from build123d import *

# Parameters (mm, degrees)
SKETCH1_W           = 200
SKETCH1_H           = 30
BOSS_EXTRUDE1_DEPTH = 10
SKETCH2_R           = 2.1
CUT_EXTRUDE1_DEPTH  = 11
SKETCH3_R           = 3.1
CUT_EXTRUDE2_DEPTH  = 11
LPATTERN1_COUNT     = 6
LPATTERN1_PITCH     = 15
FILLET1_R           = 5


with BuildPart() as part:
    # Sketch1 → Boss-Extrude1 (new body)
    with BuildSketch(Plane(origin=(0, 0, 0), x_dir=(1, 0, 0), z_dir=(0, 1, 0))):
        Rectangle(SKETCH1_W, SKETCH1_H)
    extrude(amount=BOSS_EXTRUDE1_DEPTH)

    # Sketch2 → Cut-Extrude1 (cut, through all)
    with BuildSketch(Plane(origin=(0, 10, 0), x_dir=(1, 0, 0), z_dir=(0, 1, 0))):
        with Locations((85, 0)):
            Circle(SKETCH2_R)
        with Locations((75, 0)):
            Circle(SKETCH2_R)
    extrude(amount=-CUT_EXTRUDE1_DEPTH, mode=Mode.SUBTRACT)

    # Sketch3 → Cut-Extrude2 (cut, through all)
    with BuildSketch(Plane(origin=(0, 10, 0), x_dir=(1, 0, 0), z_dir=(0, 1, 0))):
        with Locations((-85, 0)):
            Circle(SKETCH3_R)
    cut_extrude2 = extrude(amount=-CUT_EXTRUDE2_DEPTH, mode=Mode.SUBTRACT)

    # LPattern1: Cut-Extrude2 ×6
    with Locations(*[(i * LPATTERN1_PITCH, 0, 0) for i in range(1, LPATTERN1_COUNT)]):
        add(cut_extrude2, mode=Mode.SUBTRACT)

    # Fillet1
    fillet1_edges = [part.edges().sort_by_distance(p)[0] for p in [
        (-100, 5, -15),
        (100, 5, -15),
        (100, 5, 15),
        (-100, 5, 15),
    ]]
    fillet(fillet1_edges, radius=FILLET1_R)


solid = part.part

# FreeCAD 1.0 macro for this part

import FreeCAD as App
import Part
import Sketcher
Q = App.Units.Quantity


def edges_at(feature, points):
    """Names of the edges that pass closest to the given points."""
    edges = feature.Shape.Edges
    near = lambda p: min(range(len(edges)), key=lambda i: edges[i].distToShape(Part.Vertex(*p))[0])
    return sorted({f"Edge{near(p) + 1}" for p in points})

doc = App.newDocument("Part")
body = doc.addObject("PartDesign::Body", "Body")

# Sketch on XZ plane
sketch1 = doc.addObject("Sketcher::SketchObject", "Sketch")
body.addObject(sketch1)
sketch1.AttachmentSupport = (doc.XZ_Plane, [""])
sketch1.MapMode = "FlatFace"
sketch1.addGeometry(Part.LineSegment(App.Vector(-100, -15, 0), App.Vector(-100, 15, 0)), False)
sketch1.addGeometry(Part.LineSegment(App.Vector(-100, 15, 0), App.Vector(100, 15, 0)), False)
sketch1.addGeometry(Part.LineSegment(App.Vector(100, 15, 0), App.Vector(100, -15, 0)), False)
sketch1.addGeometry(Part.LineSegment(App.Vector(100, -15, 0), App.Vector(-100, -15, 0)), False)
sketch1.addConstraint(Sketcher.Constraint("Coincident", 0, 2, 1, 1))
sketch1.addConstraint(Sketcher.Constraint("Coincident", 1, 2, 2, 1))
sketch1.addConstraint(Sketcher.Constraint("Coincident", 2, 2, 3, 1))
sketch1.addConstraint(Sketcher.Constraint("Coincident", 3, 2, 0, 1))
sketch1.addConstraint(Sketcher.Constraint("Vertical", 0))
sketch1.addConstraint(Sketcher.Constraint("Horizontal", 1))
sketch1.addConstraint(Sketcher.Constraint("Vertical", 2))
sketch1.addConstraint(Sketcher.Constraint("Horizontal", 3))
sketch1.addConstraint(Sketcher.Constraint("Symmetric", 0, 2, 2, 2, -1, 1))
sketch1.addConstraint(Sketcher.Constraint("DistanceX", 1, 1, 1, 2, Q("200 mm")))
sketch1.addConstraint(Sketcher.Constraint("DistanceY", 0, 1, 0, 2, Q("30 mm")))
pad1 = doc.addObject("PartDesign::Pad", "Pad")
body.addObject(pad1)
pad1.Profile = sketch1
pad1.Length = 10
pad1.Reversed = True

# Sketch on XZ plane
sketch2 = doc.addObject("Sketcher::SketchObject", "Sketch001")
body.addObject(sketch2)
sketch2.AttachmentSupport = (doc.XZ_Plane, [""])
sketch2.MapMode = "FlatFace"
sketch2.AttachmentOffset = App.Placement(App.Vector(0, 0, -10), App.Rotation())
sketch2.addGeometry(Part.Circle(App.Vector(85, 0, 0), App.Vector(0, 0, 1), 2.1), False)
sketch2.addGeometry(Part.Circle(App.Vector(75, 0, 0), App.Vector(0, 0, 1), 2.1), False)
sketch2.addConstraint(Sketcher.Constraint("Equal", 0, 1))
sketch2.addConstraint(Sketcher.Constraint("PointOnObject", 0, 3, -1))
sketch2.addConstraint(Sketcher.Constraint("PointOnObject", 1, 3, -1))
sketch2.addConstraint(Sketcher.Constraint("Diameter", 0, Q("4.2 mm")))
sketch2.addConstraint(Sketcher.Constraint("DistanceX", -1, 1, 0, 3, Q("85 mm")))
sketch2.addConstraint(Sketcher.Constraint("DistanceX", -1, 1, 1, 3, Q("75 mm")))
pocket1 = doc.addObject("PartDesign::Pocket", "Pocket")
body.addObject(pocket1)
pocket1.Profile = sketch2
pocket1.Type = "ThroughAll"
pocket1.Reversed = True

# Sketch on XZ plane
sketch3 = doc.addObject("Sketcher::SketchObject", "Sketch002")
body.addObject(sketch3)
sketch3.AttachmentSupport = (doc.XZ_Plane, [""])
sketch3.MapMode = "FlatFace"
sketch3.AttachmentOffset = App.Placement(App.Vector(0, 0, -10), App.Rotation())
sketch3.addGeometry(Part.Circle(App.Vector(-85, 0, 0), App.Vector(0, 0, 1), 3.1), False)
sketch3.addConstraint(Sketcher.Constraint("PointOnObject", 0, 3, -1))
sketch3.addConstraint(Sketcher.Constraint("Diameter", 0, Q("6.2 mm")))
sketch3.addConstraint(Sketcher.Constraint("DistanceX", 0, 3, -1, 1, Q("85 mm")))
pocket2 = doc.addObject("PartDesign::Pocket", "Pocket001")
body.addObject(pocket2)
pocket2.Profile = sketch3
pocket2.Type = "ThroughAll"
pocket2.Reversed = True
doc.recompute()

linearpattern = doc.addObject("PartDesign::LinearPattern", "LinearPattern")
body.addObject(linearpattern)
linearpattern.Originals = [pocket2]
linearpattern.Direction = (doc.X_Axis, [""])
linearpattern.Mode = "offset"
linearpattern.Offset = 15
linearpattern.Occurrences = 6
body.Tip = linearpattern
doc.recompute()

fillet = doc.addObject("PartDesign::Fillet", "Fillet")
body.addObject(fillet)
fillet.Base = (linearpattern, edges_at(linearpattern, [
    (-100, 5, -15),
    (100, 5, -15),
    (100, 5, 15),
    (-100, 5, 15),
]))
fillet.Radius = 5

doc.recompute()
